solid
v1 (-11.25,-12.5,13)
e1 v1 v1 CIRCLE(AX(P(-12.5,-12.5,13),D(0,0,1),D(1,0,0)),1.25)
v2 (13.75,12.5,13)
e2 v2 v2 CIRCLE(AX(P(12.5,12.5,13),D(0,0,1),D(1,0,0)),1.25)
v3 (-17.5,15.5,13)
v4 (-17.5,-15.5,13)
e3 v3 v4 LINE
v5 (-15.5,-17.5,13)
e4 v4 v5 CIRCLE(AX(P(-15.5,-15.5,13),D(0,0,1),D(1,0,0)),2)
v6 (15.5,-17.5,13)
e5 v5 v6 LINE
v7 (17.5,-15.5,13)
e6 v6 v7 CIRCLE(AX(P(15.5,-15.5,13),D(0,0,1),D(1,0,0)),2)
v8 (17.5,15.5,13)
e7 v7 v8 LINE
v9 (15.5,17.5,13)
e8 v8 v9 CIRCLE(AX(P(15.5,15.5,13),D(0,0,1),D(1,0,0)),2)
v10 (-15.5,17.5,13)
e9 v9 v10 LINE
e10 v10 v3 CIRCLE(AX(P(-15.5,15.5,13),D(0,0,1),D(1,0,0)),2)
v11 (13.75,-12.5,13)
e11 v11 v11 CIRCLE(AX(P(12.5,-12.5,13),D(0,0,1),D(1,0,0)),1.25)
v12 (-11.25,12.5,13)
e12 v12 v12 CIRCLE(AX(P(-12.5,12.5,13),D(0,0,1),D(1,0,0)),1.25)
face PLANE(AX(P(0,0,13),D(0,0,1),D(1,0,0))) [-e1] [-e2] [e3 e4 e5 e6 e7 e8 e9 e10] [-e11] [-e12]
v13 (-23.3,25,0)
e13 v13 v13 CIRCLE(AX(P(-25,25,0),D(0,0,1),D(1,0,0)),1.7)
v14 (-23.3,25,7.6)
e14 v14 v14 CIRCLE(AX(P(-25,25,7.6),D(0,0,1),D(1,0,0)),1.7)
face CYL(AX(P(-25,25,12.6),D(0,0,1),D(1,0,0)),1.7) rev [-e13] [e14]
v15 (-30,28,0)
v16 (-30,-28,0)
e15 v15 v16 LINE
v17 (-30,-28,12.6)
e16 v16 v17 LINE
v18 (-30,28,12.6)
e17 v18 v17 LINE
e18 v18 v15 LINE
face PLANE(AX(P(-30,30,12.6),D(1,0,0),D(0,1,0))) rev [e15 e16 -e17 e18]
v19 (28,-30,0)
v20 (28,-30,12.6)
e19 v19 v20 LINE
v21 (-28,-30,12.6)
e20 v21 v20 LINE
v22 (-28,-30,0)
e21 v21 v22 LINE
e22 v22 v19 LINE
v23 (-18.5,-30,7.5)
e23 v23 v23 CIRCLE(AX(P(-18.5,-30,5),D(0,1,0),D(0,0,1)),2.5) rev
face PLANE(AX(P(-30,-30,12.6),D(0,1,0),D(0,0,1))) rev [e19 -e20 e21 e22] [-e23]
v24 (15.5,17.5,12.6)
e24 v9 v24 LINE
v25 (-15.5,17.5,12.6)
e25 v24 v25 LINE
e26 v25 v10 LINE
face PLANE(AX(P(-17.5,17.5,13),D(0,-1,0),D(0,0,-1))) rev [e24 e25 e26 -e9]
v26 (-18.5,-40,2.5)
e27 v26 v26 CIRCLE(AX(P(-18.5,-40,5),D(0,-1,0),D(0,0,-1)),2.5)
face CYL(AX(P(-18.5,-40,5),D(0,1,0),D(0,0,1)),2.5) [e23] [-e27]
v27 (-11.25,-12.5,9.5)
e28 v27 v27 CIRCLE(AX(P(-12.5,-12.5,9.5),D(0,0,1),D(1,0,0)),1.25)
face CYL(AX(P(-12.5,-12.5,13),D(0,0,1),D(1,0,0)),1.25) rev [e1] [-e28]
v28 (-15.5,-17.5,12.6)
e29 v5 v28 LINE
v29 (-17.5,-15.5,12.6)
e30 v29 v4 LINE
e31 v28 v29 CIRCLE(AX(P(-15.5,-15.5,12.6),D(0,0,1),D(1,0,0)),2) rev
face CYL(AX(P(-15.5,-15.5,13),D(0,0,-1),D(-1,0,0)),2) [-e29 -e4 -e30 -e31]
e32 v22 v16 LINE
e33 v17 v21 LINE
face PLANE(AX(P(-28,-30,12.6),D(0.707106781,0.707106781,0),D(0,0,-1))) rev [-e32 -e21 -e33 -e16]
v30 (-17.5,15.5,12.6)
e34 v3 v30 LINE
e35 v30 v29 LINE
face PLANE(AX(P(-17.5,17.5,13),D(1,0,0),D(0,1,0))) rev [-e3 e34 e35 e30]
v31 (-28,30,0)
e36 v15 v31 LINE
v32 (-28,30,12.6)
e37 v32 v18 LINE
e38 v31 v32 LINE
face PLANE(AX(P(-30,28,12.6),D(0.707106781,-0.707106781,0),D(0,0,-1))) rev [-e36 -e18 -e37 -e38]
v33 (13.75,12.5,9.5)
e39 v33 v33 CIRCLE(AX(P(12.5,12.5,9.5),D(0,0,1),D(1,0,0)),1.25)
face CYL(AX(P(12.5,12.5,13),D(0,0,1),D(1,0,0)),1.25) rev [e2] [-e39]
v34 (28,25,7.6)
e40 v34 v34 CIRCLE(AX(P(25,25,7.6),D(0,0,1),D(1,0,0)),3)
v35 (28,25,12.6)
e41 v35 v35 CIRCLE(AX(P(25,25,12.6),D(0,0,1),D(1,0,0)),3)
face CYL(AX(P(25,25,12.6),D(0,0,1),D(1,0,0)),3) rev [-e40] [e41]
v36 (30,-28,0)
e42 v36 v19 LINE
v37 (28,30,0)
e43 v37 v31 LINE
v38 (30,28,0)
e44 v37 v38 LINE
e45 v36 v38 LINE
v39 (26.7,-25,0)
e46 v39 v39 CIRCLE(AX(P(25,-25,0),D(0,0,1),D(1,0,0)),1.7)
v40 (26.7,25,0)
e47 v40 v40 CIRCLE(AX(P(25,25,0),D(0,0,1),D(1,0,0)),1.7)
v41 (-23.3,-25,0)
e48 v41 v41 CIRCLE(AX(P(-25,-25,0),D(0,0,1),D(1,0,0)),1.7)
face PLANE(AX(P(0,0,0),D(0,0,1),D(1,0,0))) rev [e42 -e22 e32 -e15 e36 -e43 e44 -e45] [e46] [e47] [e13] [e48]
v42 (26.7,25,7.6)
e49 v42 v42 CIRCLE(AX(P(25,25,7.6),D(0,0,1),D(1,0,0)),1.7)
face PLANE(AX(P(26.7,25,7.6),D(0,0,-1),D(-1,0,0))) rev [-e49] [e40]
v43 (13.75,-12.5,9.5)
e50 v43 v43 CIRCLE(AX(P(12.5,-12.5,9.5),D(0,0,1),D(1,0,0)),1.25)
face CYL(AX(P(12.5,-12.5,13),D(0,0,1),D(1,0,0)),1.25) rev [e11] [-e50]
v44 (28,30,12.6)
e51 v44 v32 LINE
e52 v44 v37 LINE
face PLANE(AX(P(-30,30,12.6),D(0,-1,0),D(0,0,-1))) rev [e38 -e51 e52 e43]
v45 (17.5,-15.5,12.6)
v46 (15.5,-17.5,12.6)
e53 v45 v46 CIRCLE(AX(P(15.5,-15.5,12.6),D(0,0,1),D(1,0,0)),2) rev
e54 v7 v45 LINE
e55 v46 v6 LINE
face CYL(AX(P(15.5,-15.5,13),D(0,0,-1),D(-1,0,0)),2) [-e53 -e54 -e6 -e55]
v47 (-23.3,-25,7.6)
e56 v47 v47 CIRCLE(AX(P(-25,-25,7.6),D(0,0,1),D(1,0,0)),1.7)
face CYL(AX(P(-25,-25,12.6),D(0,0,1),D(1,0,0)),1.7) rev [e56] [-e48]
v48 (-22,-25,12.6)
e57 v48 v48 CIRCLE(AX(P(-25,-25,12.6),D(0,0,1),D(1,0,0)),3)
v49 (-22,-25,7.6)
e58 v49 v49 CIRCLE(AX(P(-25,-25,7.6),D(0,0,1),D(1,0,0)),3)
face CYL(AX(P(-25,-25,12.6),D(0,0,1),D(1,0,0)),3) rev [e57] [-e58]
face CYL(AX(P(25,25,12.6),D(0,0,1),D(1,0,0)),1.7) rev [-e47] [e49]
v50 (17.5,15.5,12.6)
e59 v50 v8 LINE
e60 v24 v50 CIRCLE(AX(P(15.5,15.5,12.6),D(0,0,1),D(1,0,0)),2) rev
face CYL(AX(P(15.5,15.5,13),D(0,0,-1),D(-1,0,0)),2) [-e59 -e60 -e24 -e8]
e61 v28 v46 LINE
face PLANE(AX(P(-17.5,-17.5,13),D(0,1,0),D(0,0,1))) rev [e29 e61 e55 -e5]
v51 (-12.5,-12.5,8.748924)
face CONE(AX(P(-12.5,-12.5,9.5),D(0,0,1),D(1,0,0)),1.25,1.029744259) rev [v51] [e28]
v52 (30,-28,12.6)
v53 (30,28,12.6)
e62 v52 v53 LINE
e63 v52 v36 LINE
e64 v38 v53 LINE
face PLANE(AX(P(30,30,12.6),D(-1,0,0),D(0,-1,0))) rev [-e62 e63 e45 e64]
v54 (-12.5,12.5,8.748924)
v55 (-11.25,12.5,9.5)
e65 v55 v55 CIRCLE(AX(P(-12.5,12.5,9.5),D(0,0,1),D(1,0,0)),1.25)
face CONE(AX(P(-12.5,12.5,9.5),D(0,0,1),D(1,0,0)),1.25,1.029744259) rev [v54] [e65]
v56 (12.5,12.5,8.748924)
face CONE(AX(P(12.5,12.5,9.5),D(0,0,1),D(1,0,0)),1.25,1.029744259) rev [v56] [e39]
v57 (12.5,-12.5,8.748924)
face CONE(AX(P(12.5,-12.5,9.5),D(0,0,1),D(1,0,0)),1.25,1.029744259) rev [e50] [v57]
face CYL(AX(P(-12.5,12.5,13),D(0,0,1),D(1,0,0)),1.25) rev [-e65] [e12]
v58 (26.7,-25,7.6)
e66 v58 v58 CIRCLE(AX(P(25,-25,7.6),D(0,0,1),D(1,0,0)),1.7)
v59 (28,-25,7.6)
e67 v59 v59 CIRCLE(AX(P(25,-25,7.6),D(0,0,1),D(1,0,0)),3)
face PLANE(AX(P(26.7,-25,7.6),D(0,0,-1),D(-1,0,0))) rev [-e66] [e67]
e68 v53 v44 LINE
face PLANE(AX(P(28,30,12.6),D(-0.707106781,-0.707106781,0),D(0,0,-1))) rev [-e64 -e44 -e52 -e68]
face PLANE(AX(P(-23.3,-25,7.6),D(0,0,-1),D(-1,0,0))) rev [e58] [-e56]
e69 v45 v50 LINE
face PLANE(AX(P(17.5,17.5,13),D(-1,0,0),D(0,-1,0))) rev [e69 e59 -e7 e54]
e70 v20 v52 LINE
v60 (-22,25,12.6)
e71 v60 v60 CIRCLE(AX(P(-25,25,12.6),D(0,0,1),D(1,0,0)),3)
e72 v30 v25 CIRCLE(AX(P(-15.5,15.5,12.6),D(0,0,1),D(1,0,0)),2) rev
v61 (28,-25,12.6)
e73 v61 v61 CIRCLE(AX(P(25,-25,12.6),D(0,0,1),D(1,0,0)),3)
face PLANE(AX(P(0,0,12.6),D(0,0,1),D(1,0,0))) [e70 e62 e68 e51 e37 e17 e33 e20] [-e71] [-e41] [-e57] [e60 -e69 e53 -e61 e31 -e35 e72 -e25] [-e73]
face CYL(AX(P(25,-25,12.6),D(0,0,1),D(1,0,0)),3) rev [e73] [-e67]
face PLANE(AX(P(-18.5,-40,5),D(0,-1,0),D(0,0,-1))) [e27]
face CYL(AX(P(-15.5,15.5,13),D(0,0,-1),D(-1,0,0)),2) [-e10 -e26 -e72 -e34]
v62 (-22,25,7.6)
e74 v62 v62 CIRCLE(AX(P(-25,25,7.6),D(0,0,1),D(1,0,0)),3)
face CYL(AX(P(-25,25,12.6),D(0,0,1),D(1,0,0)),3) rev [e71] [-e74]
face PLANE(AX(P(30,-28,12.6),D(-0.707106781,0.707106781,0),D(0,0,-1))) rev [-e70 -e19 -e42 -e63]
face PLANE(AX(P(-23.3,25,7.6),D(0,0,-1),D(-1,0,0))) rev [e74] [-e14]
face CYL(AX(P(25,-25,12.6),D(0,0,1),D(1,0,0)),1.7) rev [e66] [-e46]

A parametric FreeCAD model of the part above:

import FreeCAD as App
import Part
import Sketcher
from FreeCAD import Vector
Q = App.Units.Quantity


def edges_at(feature, points):
    """Names of the edges that pass closest to the given points."""
    edges = feature.Shape.Edges
    near = lambda p: min(range(len(edges)), key=lambda i: edges[i].distToShape(Part.Vertex(*p))[0])
    return sorted({f"Edge{near(p) + 1}" for p in points})

doc = App.newDocument("Part")
body = doc.addObject("PartDesign::Body", "Body")

sketch1 = doc.addObject("Sketcher::SketchObject", "Sketch")
body.addObject(sketch1)
sketch1.AttachmentSupport = (doc.XY_Plane, [""])
sketch1.MapMode = "FlatFace"
sketch1.addGeometry(Part.LineSegment(Vector(-30, 30, 0), Vector(-30, -30, 0)), False)
sketch1.addGeometry(Part.LineSegment(Vector(-30, -30, 0), Vector(30, -30, 0)), False)
sketch1.addGeometry(Part.LineSegment(Vector(30, -30, 0), Vector(30, 30, 0)), False)
sketch1.addGeometry(Part.LineSegment(Vector(30, 30, 0), Vector(-30, 30, 0)), False)
sketch1.addConstraint(Sketcher.Constraint("Coincident", 0, 2, 1, 1))
sketch1.addConstraint(Sketcher.Constraint("Coincident", 1, 2, 2, 1))
sketch1.addConstraint(Sketcher.Constraint("Coincident", 2, 2, 3, 1))
sketch1.addConstraint(Sketcher.Constraint("Coincident", 3, 2, 0, 1))
sketch1.addConstraint(Sketcher.Constraint("Vertical", 0))
sketch1.addConstraint(Sketcher.Constraint("Horizontal", 1))
sketch1.addConstraint(Sketcher.Constraint("Vertical", 2))
sketch1.addConstraint(Sketcher.Constraint("Horizontal", 3))
sketch1.addConstraint(Sketcher.Constraint("Symmetric", 0, 2, 2, 2, -1, 1))
sketch1.addConstraint(Sketcher.Constraint("Equal", 3, 0))
sketch1.addConstraint(Sketcher.Constraint("DistanceX", 1, 1, 1, 2, Q("60 mm")))
pad1 = doc.addObject("PartDesign::Pad", "Pad")
body.addObject(pad1)
pad1.Profile = sketch1
pad1.Length = 12.6
doc.recompute()

chamfer = doc.addObject("PartDesign::Chamfer", "Chamfer")
body.addObject(chamfer)
chamfer.Base = (pad1, edges_at(pad1, [
    (30, -30, 6.3),
    (-30, -30, 6.3),
    (-30, 30, 6.3),
    (30, 30, 6.3),
]))
chamfer.Size = 2

sketch2 = doc.addObject("Sketcher::SketchObject", "Sketch001")
body.addObject(sketch2)
sketch2.AttachmentSupport = (doc.XY_Plane, [""])
sketch2.MapMode = "FlatFace"
sketch2.AttachmentOffset = App.Placement(Vector(0, 0, 12.6), App.Rotation())
sketch2.addGeometry(Part.LineSegment(Vector(-18, 18, 0), Vector(-18, -18, 0)), False)
sketch2.addGeometry(Part.LineSegment(Vector(-18, -18, 0), Vector(18, -18, 0)), False)
sketch2.addGeometry(Part.LineSegment(Vector(18, -18, 0), Vector(18, 18, 0)), False)
sketch2.addGeometry(Part.LineSegment(Vector(18, 18, 0), Vector(-18, 18, 0)), False)
sketch2.addConstraint(Sketcher.Constraint("Coincident", 0, 2, 1, 1))
sketch2.addConstraint(Sketcher.Constraint("Coincident", 1, 2, 2, 1))
sketch2.addConstraint(Sketcher.Constraint("Coincident", 2, 2, 3, 1))
sketch2.addConstraint(Sketcher.Constraint("Coincident", 3, 2, 0, 1))
sketch2.addConstraint(Sketcher.Constraint("Vertical", 0))
sketch2.addConstraint(Sketcher.Constraint("Horizontal", 1))
sketch2.addConstraint(Sketcher.Constraint("Vertical", 2))
sketch2.addConstraint(Sketcher.Constraint("Horizontal", 3))
sketch2.addConstraint(Sketcher.Constraint("Symmetric", 0, 2, 2, 2, -1, 1))
sketch2.addConstraint(Sketcher.Constraint("Equal", 3, 0))
sketch2.addConstraint(Sketcher.Constraint("DistanceX", 1, 1, 1, 2, Q("35 mm")))
pad2 = doc.addObject("PartDesign::Pad", "Pad001")
body.addObject(pad2)
pad2.Profile = sketch2
pad2.Length = 0.4
doc.recompute()

fillet = doc.addObject("PartDesign::Fillet", "Fillet")
body.addObject(fillet)
fillet.Base = (pad2, edges_at(pad2, [
    (17.5, -17.5, 12.8),
    (17.5, 17.5, 12.8),
    (-17.5, 17.5, 12.8),
    (-17.5, -17.5, 12.8),
]))
fillet.Radius = 2

sketch3 = doc.addObject("Sketcher::SketchObject", "Sketch002")
body.addObject(sketch3)
sketch3.AttachmentSupport = (doc.XY_Plane, [""])
sketch3.MapMode = "FlatFace"
sketch3.AttachmentOffset = App.Placement(Vector(0, 0, 12.6), App.Rotation())
sketch3.addGeometry(Part.Circle(Vector(-25, 25, 0), Vector(0, 0, 1), 1.7), False)
sketch3.addGeometry(Part.Circle(Vector(25, 25, 0), Vector(0, 0, 1), 1.7), False)
sketch3.addGeometry(Part.Circle(Vector(-25, -25, 0), Vector(0, 0, 1), 1.7), False)
sketch3.addGeometry(Part.Circle(Vector(25, -25, 0), Vector(0, 0, 1), 1.7), False)
sketch3.addConstraint(Sketcher.Constraint("Equal", 0, 1))
sketch3.addConstraint(Sketcher.Constraint("Equal", 1, 2))
sketch3.addConstraint(Sketcher.Constraint("Equal", 2, 3))
sketch3.addConstraint(Sketcher.Constraint("Symmetric", 1, 3, 2, 3, -1, 1))
sketch3.addConstraint(Sketcher.Constraint("Symmetric", 0, 3, 3, 3, -1, 1))
sketch3.addConstraint(Sketcher.Constraint("Symmetric", 0, 3, 1, 3, -2))
sketch3.addConstraint(Sketcher.Constraint("Diameter", 0, Q("3.4 mm")))
sketch3.addConstraint(Sketcher.Constraint("DistanceX", 0, 3, -1, 1, Q("25 mm")))
sketch3.addConstraint(Sketcher.Constraint("DistanceY", -1, 1, 0, 3, Q("25 mm")))
doc.recompute()
hole = doc.addObject("PartDesign::Hole", "Hole")
body.addObject(hole)
hole.Profile = sketch3
hole.ThreadType = "None"
hole.Diameter = 3.4
hole.DepthType = "ThroughAll"
hole.HoleCutType = "Counterbore"
hole.HoleCutDiameter = 6
hole.HoleCutDepth = 5

sketch4 = doc.addObject("Sketcher::SketchObject", "Sketch003")
body.addObject(sketch4)
sketch4.AttachmentSupport = (doc.XY_Plane, [""])
sketch4.MapMode = "FlatFace"
sketch4.AttachmentOffset = App.Placement(Vector(0, 0, 13), App.Rotation())
sketch4.addGeometry(Part.Circle(Vector(-12.5, 12.5, 0), Vector(0, 0, 1), 1.2), False)
sketch4.addGeometry(Part.Circle(Vector(12.5, 12.5, 0), Vector(0, 0, 1), 1.2), False)
sketch4.addGeometry(Part.Circle(Vector(12.5, -12.5, 0), Vector(0, 0, 1), 1.2), False)
sketch4.addGeometry(Part.Circle(Vector(-12.5, -12.5, 0), Vector(0, 0, 1), 1.2), False)
sketch4.addConstraint(Sketcher.Constraint("Equal", 0, 1))
sketch4.addConstraint(Sketcher.Constraint("Equal", 1, 2))
sketch4.addConstraint(Sketcher.Constraint("Equal", 2, 3))
sketch4.addConstraint(Sketcher.Constraint("Symmetric", 0, 3, 2, 3, -1, 1))
sketch4.addConstraint(Sketcher.Constraint("Symmetric", 1, 3, 3, 3, -1, 1))
sketch4.addConstraint(Sketcher.Constraint("Symmetric", 0, 3, 1, 3, -2))
sketch4.addConstraint(Sketcher.Constraint("Diameter", 0, Q("2.5 mm")))
sketch4.addConstraint(Sketcher.Constraint("DistanceX", 0, 3, 1, 3, Q("25 mm")))
sketch4.addConstraint(Sketcher.Constraint("DistanceY", 2, 3, 1, 3, Q("25 mm")))
doc.recompute()
hole2 = doc.addObject("PartDesign::Hole", "Hole001")
body.addObject(hole2)
hole2.Profile = sketch4
hole2.ThreadType = "None"
hole2.Diameter = 2.5
hole2.DepthType = "Dimension"
hole2.Depth = 3.5
hole2.DrillPoint = "Angled"
hole2.DrillPointAngle = 118

sketch5 = doc.addObject("Sketcher::SketchObject", "Sketch004")
body.addObject(sketch5)
sketch5.AttachmentSupport = (doc.XZ_Plane, [""])
sketch5.MapMode = "FlatFace"
sketch5.AttachmentOffset = App.Placement(Vector(0, 0, 30), App.Rotation())
sketch5.addGeometry(Part.Circle(Vector(-18.5, 5, 0), Vector(0, 0, 1), 2.5), False)
sketch5.addConstraint(Sketcher.Constraint("Diameter", 0, Q("5 mm")))
sketch5.addConstraint(Sketcher.Constraint("DistanceY", -1, 1, 0, 3, Q("5 mm")))
sketch5.addConstraint(Sketcher.Constraint("DistanceX", 0, 3, -1, 1, Q("18.5 mm")))
pad3 = doc.addObject("PartDesign::Pad", "Pad002")
body.addObject(pad3)
pad3.Profile = sketch5
pad3.Length = 10

doc.recompute()
